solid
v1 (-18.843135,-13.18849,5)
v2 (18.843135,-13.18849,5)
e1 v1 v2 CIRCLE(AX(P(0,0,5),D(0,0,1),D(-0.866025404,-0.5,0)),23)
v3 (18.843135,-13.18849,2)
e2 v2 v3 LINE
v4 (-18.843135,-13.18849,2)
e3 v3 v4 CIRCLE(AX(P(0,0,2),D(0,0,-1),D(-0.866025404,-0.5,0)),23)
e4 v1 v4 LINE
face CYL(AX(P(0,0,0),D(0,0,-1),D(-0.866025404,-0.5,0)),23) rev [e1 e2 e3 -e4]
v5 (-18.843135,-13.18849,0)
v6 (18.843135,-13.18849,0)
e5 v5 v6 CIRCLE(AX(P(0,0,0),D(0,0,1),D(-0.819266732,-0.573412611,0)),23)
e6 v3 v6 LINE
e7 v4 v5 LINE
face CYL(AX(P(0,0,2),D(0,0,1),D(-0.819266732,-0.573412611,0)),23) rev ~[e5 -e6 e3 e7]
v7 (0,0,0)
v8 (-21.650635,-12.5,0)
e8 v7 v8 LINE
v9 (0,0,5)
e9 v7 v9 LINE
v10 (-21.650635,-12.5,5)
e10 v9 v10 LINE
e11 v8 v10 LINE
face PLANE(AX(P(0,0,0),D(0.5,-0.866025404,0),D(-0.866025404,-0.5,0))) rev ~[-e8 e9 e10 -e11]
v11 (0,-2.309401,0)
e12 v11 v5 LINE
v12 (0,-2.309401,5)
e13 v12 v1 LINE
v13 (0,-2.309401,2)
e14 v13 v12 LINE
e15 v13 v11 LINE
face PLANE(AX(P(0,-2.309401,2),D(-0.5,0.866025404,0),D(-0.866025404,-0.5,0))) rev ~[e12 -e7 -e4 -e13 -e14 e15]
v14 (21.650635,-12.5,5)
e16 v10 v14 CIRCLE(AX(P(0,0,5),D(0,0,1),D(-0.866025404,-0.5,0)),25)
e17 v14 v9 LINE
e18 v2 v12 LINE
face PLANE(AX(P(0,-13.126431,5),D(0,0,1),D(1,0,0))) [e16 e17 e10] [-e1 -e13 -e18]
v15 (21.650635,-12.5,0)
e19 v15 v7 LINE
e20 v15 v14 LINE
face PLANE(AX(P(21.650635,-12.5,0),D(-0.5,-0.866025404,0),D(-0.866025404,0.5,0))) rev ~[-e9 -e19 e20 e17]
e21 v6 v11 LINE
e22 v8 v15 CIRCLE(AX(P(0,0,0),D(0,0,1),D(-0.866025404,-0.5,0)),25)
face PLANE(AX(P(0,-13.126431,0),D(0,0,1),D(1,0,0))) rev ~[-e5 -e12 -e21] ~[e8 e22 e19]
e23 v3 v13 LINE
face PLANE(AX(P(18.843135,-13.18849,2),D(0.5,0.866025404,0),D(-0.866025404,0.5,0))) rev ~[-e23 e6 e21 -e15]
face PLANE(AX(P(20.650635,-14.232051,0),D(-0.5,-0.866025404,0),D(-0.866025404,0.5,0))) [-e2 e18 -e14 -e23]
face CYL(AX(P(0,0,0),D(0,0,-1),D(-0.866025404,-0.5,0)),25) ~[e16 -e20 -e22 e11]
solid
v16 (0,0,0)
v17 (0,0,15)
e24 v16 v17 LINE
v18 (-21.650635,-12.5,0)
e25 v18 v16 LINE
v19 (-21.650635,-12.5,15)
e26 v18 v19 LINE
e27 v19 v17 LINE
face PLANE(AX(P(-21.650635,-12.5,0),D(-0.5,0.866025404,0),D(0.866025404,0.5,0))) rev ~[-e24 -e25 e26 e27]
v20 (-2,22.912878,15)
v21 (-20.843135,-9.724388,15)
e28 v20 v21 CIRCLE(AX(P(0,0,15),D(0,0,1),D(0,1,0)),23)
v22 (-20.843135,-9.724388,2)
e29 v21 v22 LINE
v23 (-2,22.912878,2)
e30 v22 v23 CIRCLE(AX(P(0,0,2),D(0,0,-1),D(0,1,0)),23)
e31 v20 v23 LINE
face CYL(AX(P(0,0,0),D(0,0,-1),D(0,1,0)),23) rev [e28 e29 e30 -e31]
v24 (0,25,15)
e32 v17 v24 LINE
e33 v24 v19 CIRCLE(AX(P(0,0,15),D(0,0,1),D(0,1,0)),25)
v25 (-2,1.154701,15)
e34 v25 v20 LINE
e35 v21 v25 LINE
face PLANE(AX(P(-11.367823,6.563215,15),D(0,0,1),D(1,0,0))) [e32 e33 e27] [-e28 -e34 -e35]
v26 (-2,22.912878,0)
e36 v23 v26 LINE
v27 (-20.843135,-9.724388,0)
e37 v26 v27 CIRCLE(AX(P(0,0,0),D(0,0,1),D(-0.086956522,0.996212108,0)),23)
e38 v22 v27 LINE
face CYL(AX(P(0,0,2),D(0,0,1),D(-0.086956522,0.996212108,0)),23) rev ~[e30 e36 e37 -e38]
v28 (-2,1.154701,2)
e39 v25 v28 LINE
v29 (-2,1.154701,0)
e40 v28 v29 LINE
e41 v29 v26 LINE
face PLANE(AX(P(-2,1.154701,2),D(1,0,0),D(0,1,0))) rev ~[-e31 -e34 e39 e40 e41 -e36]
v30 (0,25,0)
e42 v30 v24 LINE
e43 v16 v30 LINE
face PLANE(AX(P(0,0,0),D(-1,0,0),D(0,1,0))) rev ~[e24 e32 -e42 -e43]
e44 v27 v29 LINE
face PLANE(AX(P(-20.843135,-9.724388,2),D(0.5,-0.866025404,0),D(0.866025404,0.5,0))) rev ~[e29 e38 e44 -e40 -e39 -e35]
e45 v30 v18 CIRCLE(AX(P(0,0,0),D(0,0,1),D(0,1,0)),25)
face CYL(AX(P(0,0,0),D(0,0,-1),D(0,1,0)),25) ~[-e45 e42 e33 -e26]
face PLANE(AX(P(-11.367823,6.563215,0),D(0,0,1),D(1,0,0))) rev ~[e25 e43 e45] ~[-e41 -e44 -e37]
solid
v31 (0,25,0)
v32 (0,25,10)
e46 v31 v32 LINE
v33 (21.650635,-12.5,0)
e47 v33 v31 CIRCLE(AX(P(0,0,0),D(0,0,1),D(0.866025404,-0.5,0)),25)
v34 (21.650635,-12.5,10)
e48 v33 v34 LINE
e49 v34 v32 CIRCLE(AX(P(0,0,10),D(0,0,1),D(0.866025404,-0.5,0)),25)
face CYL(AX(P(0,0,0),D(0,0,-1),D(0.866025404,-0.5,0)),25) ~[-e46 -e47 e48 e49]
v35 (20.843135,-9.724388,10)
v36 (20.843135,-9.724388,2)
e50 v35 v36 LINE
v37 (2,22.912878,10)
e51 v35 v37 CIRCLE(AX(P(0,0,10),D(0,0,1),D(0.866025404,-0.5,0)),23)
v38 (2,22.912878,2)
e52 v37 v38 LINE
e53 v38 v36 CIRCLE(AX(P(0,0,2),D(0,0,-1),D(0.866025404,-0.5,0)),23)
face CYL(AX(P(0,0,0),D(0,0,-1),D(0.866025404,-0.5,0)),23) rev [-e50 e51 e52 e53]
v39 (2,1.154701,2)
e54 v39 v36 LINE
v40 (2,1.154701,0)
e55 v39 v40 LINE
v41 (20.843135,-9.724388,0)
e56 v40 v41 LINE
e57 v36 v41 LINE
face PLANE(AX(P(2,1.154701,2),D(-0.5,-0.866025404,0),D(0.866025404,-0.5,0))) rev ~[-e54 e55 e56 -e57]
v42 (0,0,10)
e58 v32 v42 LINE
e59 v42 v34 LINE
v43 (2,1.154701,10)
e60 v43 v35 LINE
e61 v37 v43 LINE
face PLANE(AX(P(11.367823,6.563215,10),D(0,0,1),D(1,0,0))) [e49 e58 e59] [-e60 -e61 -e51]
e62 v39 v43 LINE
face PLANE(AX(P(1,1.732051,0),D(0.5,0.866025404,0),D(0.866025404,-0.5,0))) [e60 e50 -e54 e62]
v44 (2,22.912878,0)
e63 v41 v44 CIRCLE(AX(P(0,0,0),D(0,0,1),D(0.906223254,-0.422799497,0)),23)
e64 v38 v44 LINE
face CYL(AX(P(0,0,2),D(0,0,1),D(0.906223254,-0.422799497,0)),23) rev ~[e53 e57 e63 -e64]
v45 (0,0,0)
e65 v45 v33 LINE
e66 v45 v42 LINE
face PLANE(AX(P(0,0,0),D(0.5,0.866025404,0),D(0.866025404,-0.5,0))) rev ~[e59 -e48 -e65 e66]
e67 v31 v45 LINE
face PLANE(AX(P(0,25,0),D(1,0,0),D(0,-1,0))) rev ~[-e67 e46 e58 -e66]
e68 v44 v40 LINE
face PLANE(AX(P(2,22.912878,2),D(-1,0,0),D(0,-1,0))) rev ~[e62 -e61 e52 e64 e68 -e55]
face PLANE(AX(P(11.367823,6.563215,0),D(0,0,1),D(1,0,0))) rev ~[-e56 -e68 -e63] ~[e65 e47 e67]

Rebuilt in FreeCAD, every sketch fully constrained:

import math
import FreeCAD as App
import Part
import Sketcher
from FreeCAD import Vector
Q = App.Units.Quantity


def faces_at(feature, points):
    """Names of the faces that lie closest to the given points."""
    faces = feature.Shape.Faces
    near = lambda p: min(range(len(faces)), key=lambda i: faces[i].distToShape(Part.Vertex(*p))[0])
    return sorted({f"Face{near(p) + 1}" for p in points})

doc = App.newDocument("Part")
body = doc.addObject("PartDesign::Body", "Body")

# Sketch on XY plane
sketch1 = body.newObject("Sketcher::SketchObject", "Sketch")
sketch1.AttachmentSupport = (doc.getObject("XY_Plane"), [""])
sketch1.MapMode = "FlatFace"
sketch1.addGeometry([
    Part.LineSegment(Vector(0, 0, 0), Vector(0, 25, 0)),
    Part.ArcOfCircle(Part.Circle(Vector(0, 0, 0), Vector(0, 0, 1), 25), math.radians(90), math.radians(210)),
    Part.LineSegment(Vector(-21.650635, -12.5, 0), Vector(0, 0, 0)),
], False)
sketch1.addConstraint([
    Sketcher.Constraint("Coincident", 0, 2, 1, 1),
    Sketcher.Constraint("Coincident", 1, 2, 2, 1),
    Sketcher.Constraint("Coincident", 2, 2, 0, 1),
    Sketcher.Constraint("Vertical", 0),
    Sketcher.Constraint("Coincident", 1, 3, -1, 1),
    Sketcher.Constraint("Coincident", 2, 2, -1, 1),
    Sketcher.Constraint("Radius", 1, 25.0),
    Sketcher.Constraint("Angle", 2, Q("30 deg")),
])
pad1 = body.newObject("PartDesign::Pad", "Pad")
pad1.Profile = sketch1
pad1.Length = 15
doc.recompute()

thickness = body.newObject("PartDesign::Thickness", "Thickness")
thickness.Base = (pad1, faces_at(pad1, [(-12.5, 6.25, 15)]))
thickness.Value = 2
thickness.Reversed = True
thickness.Join = "Arc"
body2 = doc.addObject("PartDesign::Body", "Body001")

# Sketch on XY plane
sketch2 = body2.newObject("Sketcher::SketchObject", "Sketch001")
sketch2.AttachmentSupport = (doc.getObject("XY_Plane001"), [""])
sketch2.MapMode = "FlatFace"
sketch2.addGeometry([
    Part.ArcOfCircle(Part.Circle(Vector(0, 0, 0), Vector(0, 0, 1), 25), math.radians(-30), math.radians(90)),
    Part.LineSegment(Vector(0, 25, 0), Vector(0, 0, 0)),
    Part.LineSegment(Vector(0, 0, 0), Vector(21.650635, -12.5, 0)),
], False)
sketch2.addConstraint([
    Sketcher.Constraint("Coincident", 0, 2, 1, 1),
    Sketcher.Constraint("Coincident", 1, 2, 2, 1),
    Sketcher.Constraint("Coincident", 2, 2, 0, 1),
    Sketcher.Constraint("Vertical", 1),
    Sketcher.Constraint("Coincident", 0, 3, -1, 1),
    Sketcher.Constraint("Coincident", 1, 2, -1, 1),
    Sketcher.Constraint("Radius", 0, 25.0),
    Sketcher.Constraint("Angle", 2, Q("-30 deg")),
])
pad2 = body2.newObject("PartDesign::Pad", "Pad001")
pad2.Profile = sketch2
pad2.Length = 10
doc.recompute()

thickness2 = body2.newObject("PartDesign::Thickness", "Thickness001")
thickness2.Base = (pad2, faces_at(pad2, [(12.5, 6.25, 10)]))
thickness2.Value = 2
thickness2.Reversed = True
thickness2.Join = "Arc"
body3 = doc.addObject("PartDesign::Body", "Body002")

# Sketch on XY plane
sketch3 = body3.newObject("Sketcher::SketchObject", "Sketch002")
sketch3.AttachmentSupport = (doc.getObject("XY_Plane002"), [""])
sketch3.MapMode = "FlatFace"
sketch3.addGeometry([
    Part.ArcOfCircle(Part.Circle(Vector(0, 0, 0), Vector(0, 0, 1), 25), math.radians(-150), math.radians(-30)),
    Part.LineSegment(Vector(21.650635, -12.5, 0), Vector(0, 0, 0)),
    Part.LineSegment(Vector(0, 0, 0), Vector(-21.650635, -12.5, 0)),
], False)
sketch3.addConstraint([
    Sketcher.Constraint("Coincident", 0, 2, 1, 1),
    Sketcher.Constraint("Coincident", 1, 2, 2, 1),
    Sketcher.Constraint("Coincident", 2, 2, 0, 1),
    Sketcher.Constraint("Coincident", 0, 3, -1, 1),
    Sketcher.Constraint("Coincident", 1, 2, -1, 1),
    Sketcher.Constraint("Horizontal", 0, 2, 2, 2),
    Sketcher.Constraint("Radius", 0, 25.0),
    Sketcher.Constraint("Angle", 1, Q("150 deg")),
])
pad3 = body3.newObject("PartDesign::Pad", "Pad002")
pad3.Profile = sketch3
pad3.Length = 5
doc.recompute()

thickness3 = body3.newObject("PartDesign::Thickness", "Thickness002")
thickness3.Base = (pad3, faces_at(pad3, [(0, -12.5, 5)]))
thickness3.Value = 2
thickness3.Reversed = True
thickness3.Join = "Arc"
body4 = doc.addObject("PartDesign::Body", "Body003")
body4.AllowCompound = True

# Sketch on XY plane
sketch4 = body4.newObject("Sketcher::SketchObject", "Sketch003")
sketch4.AttachmentSupport = (doc.getObject("XY_Plane003"), [""])
sketch4.MapMode = "FlatFace"
sketch4.AttachmentOffset = App.Placement(Vector(0, 0, 2), App.Rotation())
sketch4.addGeometry([
    Part.LineSegment(Vector(-20.843135, -9.724388, 0), Vector(-2, 1.154701, 0)),  # 0
    Part.LineSegment(Vector(-2, 1.154701, 0), Vector(-2, 22.912878, 0)),  # 1
    Part.ArcOfCircle(Part.Circle(Vector(0, 0, 0), Vector(0, 0, 1), 23), math.radians(94.988542), math.radians(205.011458)),  # 2
    Part.ArcOfCircle(Part.Circle(Vector(0, 0, 0), Vector(0, 0, 1), 23), math.radians(-25.011458), math.radians(85.011458)),  # 3
    Part.LineSegment(Vector(2, 22.912878, 0), Vector(2, 1.154701, 0)),  # 4
    Part.LineSegment(Vector(2, 1.154701, 0), Vector(20.843135, -9.724388, 0)),  # 5
    Part.ArcOfCircle(Part.Circle(Vector(0, 0, 0), Vector(0, 0, 1), 23), math.radians(-145.011458), math.radians(-34.988542)),  # 6
    Part.LineSegment(Vector(18.843135, -13.18849, 0), Vector(0, -2.309401, 0)),  # 7
    Part.LineSegment(Vector(0, -2.309401, 0), Vector(-18.843135, -13.18849, 0)),  # 8
], False)
sketch4.addConstraint([
    Sketcher.Constraint("Coincident", 0, 2, 1, 1),
    Sketcher.Constraint("Coincident", 1, 2, 2, 1),
    Sketcher.Constraint("Coincident", 2, 2, 0, 1),
    Sketcher.Constraint("Coincident", 3, 2, 4, 1),
    Sketcher.Constraint("Coincident", 4, 2, 5, 1),
    Sketcher.Constraint("Coincident", 5, 2, 3, 1),
    Sketcher.Constraint("Coincident", 6, 2, 7, 1),
    Sketcher.Constraint("Coincident", 7, 2, 8, 1),
    Sketcher.Constraint("Coincident", 8, 2, 6, 1),
    Sketcher.Constraint("Vertical", 1),
    Sketcher.Constraint("Vertical", 4),
    Sketcher.Constraint("Coincident", 2, 3, -1, 1),
    Sketcher.Constraint("Coincident", 3, 3, -1, 1),
    Sketcher.Constraint("Coincident", 6, 3, -1, 1),
    Sketcher.Constraint("Equal", 2, 3),
    Sketcher.Constraint("Equal", 3, 6),
    Sketcher.Constraint("Symmetric", 0, 2, 4, 2, -2),
    Sketcher.Constraint("PointOnObject", 7, 2, -2),
    Sketcher.Constraint("Parallel", 5, 7),
    Sketcher.Constraint("Parallel", 0, 8),
    Sketcher.Constraint("Horizontal", 2, 2, 5, 2),
    Sketcher.Constraint("Equal", 5, 7),
    Sketcher.Constraint("Radius", 2, 23.0),
    Sketcher.Constraint("Angle", 0, Q("30 deg")),
    Sketcher.Constraint("DistanceX", 0, 2, -1, 1, 2.0),
    Sketcher.Constraint("DistanceY", -1, 1, 0, 2, 1.154701),
])
pad4 = body4.newObject("PartDesign::Pad", "Pad003")
pad4.Profile = sketch4
pad4.Length = 25
pad4.Reversed = True
doc.recompute()

body5 = doc.addObject("PartDesign::Body", "Body004")
body5.BaseFeature = body4
boolean = body.newObject("PartDesign::Boolean", "Boolean")
boolean.Type = "Cut"
boolean.addObjects([body5])
doc.recompute()

body6 = doc.addObject("PartDesign::Body", "Body005")
body6.BaseFeature = body4
boolean2 = body2.newObject("PartDesign::Boolean", "Boolean001")
boolean2.Type = "Cut"
boolean2.addObjects([body6])
doc.recompute()

boolean3 = body3.newObject("PartDesign::Boolean", "Boolean002")
boolean3.Type = "Cut"
boolean3.addObjects([body4])

doc.recompute()
